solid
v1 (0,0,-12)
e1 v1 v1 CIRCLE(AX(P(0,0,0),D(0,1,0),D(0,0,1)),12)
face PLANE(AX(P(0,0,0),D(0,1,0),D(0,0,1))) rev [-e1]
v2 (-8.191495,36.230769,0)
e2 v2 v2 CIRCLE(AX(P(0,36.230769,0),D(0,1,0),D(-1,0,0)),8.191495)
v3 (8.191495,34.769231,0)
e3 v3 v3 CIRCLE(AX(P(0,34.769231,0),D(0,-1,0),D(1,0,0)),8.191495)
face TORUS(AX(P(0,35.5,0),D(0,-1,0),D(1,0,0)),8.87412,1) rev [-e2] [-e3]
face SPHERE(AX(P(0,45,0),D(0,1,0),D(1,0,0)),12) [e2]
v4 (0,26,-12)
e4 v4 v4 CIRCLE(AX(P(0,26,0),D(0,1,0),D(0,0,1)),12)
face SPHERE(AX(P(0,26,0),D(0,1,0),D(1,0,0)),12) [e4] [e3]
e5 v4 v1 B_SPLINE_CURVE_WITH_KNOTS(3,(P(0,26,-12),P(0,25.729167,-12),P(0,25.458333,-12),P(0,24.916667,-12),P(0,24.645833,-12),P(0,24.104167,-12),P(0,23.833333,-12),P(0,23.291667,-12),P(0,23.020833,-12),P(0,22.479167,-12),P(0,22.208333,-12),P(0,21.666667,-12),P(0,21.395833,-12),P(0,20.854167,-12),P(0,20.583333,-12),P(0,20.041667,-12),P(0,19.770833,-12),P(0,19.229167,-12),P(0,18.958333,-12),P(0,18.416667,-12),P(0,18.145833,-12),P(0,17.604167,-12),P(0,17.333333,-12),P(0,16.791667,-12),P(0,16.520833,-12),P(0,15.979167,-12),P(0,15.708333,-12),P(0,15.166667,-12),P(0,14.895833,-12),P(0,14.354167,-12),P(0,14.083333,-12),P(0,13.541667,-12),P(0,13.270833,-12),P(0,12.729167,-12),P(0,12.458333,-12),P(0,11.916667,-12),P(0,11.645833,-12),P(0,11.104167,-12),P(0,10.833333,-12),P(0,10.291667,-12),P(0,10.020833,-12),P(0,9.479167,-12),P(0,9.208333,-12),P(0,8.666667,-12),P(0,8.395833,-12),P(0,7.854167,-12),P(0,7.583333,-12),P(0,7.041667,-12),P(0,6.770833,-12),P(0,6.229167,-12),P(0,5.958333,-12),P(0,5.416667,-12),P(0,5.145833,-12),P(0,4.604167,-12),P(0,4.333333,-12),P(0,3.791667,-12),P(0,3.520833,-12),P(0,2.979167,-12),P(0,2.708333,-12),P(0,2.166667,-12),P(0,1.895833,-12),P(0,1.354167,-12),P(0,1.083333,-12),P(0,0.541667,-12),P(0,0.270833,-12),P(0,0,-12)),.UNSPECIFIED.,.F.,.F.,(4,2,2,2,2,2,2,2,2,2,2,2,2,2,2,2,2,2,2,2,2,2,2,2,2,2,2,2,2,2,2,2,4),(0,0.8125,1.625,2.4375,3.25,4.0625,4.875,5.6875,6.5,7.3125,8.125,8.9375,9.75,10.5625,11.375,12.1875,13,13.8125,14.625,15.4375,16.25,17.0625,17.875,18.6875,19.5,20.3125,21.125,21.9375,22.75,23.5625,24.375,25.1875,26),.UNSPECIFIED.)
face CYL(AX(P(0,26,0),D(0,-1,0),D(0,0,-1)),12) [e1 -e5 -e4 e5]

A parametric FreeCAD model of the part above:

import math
import FreeCAD as App
import Part
import Sketcher
Q = App.Units.Quantity


def edges_at(feature, points):
    """Names of the edges that pass closest to the given points."""
    edges = feature.Shape.Edges
    near = lambda p: min(range(len(edges)), key=lambda i: edges[i].distToShape(Part.Vertex(*p))[0])
    return sorted({f"Edge{near(p) + 1}" for p in points})

doc = App.newDocument("Part")
params = doc.addObject("Spreadsheet::Sheet", "Params")
for row, (alias, value) in enumerate([
    ("sketch1_diameter", "24 mm"),
    ("pad1_length", "26 mm"),
    ("sketch2_radius", "12 mm"),
    ("sketch2_height", "31 mm"),
    ("revolution_angle", "360 deg"),
    ("fillet_radius", "1 mm"),
], start=1):
    params.set(f"A{row}", alias)
    params.set(f"B{row}", "=" + value)
    params.setAlias(f"B{row}", alias)

body = doc.addObject("PartDesign::Body", "Body")

sketch1 = body.newObject("Sketcher::SketchObject", "Sketch")
sketch1.AttachmentSupport = (doc.getObject("XZ_Plane"), [""])
sketch1.MapMode = "FlatFace"
sketch1.addGeometry(Part.Circle(App.Vector(0, 0, 0), App.Vector(0, 0, 1), 12), False)
sketch1.addConstraint([
    Sketcher.Constraint("Coincident", 0, 3, -1, 1),
    Sketcher.Constraint("Diameter", 0, Q("24 mm")),
])
sketch1.setExpression("Constraints[1]", "Params.sketch1_diameter")
pad1 = body.newObject("PartDesign::Pad", "Pad")
pad1.Profile = sketch1
pad1.setExpression("Length", "Params.pad1_length")
pad1.Reversed = True

sketch2 = body.newObject("Sketcher::SketchObject", "Sketch001")
sketch2.AttachmentSupport = (doc.getObject("XY_Plane"), [""])
sketch2.MapMode = "FlatFace"
sketch2.addGeometry([
    Part.LineSegment(App.Vector(0, 26, 0), App.Vector(12, 26, 0)),
    Part.ArcOfCircle(Part.Circle(App.Vector(0, 26, 0), App.Vector(0, 0, 1), 12), math.radians(0), math.radians(52)),
    Part.ArcOfCircle(Part.Circle(App.Vector(0, 45, 0), App.Vector(0, 0, 1), 12), math.radians(-52), math.radians(90)),
    Part.LineSegment(App.Vector(0, 57, 0), App.Vector(0, 26, 0)),
], False)
sketch2.addConstraint([
    Sketcher.Constraint("Coincident", 0, 2, 1, 1),
    Sketcher.Constraint("Coincident", 1, 2, 2, 1),
    Sketcher.Constraint("Coincident", 2, 2, 3, 1),
    Sketcher.Constraint("Coincident", 3, 2, 0, 1),
    Sketcher.Constraint("Horizontal", 0),
    Sketcher.Constraint("Vertical", 3),
    Sketcher.Constraint("Coincident", 3, 2, 1, 3),
    Sketcher.Constraint("Equal", 1, 2),
    Sketcher.Constraint("PointOnObject", 1, 3, -2),
    Sketcher.Constraint("PointOnObject", 2, 3, -2),
    Sketcher.Constraint("Radius", 1, Q("12 mm")),
    Sketcher.Constraint("DistanceY", 3, 2, 3, 1, Q("31 mm")),
    Sketcher.Constraint("DistanceY", -1, 1, 1, 3, Q("26 mm")),
])
sketch2.setExpression("Constraints[10]", "Params.sketch2_radius")
sketch2.setExpression("Constraints[11]", "Params.sketch2_height")
revolution = body.newObject("PartDesign::Revolution", "Revolution")
revolution.Profile = sketch2
revolution.ReferenceAxis = (sketch2, ["V_Axis"])
revolution.setExpression("Angle", "Params.revolution_angle")
doc.recompute()

fillet = body.newObject("PartDesign::Fillet", "Fillet")
fillet.Base = (revolution, edges_at(revolution, [(0, 35.5, 7.331)]))
fillet.setExpression("Radius", "Params.fillet_radius")

doc.recompute()
